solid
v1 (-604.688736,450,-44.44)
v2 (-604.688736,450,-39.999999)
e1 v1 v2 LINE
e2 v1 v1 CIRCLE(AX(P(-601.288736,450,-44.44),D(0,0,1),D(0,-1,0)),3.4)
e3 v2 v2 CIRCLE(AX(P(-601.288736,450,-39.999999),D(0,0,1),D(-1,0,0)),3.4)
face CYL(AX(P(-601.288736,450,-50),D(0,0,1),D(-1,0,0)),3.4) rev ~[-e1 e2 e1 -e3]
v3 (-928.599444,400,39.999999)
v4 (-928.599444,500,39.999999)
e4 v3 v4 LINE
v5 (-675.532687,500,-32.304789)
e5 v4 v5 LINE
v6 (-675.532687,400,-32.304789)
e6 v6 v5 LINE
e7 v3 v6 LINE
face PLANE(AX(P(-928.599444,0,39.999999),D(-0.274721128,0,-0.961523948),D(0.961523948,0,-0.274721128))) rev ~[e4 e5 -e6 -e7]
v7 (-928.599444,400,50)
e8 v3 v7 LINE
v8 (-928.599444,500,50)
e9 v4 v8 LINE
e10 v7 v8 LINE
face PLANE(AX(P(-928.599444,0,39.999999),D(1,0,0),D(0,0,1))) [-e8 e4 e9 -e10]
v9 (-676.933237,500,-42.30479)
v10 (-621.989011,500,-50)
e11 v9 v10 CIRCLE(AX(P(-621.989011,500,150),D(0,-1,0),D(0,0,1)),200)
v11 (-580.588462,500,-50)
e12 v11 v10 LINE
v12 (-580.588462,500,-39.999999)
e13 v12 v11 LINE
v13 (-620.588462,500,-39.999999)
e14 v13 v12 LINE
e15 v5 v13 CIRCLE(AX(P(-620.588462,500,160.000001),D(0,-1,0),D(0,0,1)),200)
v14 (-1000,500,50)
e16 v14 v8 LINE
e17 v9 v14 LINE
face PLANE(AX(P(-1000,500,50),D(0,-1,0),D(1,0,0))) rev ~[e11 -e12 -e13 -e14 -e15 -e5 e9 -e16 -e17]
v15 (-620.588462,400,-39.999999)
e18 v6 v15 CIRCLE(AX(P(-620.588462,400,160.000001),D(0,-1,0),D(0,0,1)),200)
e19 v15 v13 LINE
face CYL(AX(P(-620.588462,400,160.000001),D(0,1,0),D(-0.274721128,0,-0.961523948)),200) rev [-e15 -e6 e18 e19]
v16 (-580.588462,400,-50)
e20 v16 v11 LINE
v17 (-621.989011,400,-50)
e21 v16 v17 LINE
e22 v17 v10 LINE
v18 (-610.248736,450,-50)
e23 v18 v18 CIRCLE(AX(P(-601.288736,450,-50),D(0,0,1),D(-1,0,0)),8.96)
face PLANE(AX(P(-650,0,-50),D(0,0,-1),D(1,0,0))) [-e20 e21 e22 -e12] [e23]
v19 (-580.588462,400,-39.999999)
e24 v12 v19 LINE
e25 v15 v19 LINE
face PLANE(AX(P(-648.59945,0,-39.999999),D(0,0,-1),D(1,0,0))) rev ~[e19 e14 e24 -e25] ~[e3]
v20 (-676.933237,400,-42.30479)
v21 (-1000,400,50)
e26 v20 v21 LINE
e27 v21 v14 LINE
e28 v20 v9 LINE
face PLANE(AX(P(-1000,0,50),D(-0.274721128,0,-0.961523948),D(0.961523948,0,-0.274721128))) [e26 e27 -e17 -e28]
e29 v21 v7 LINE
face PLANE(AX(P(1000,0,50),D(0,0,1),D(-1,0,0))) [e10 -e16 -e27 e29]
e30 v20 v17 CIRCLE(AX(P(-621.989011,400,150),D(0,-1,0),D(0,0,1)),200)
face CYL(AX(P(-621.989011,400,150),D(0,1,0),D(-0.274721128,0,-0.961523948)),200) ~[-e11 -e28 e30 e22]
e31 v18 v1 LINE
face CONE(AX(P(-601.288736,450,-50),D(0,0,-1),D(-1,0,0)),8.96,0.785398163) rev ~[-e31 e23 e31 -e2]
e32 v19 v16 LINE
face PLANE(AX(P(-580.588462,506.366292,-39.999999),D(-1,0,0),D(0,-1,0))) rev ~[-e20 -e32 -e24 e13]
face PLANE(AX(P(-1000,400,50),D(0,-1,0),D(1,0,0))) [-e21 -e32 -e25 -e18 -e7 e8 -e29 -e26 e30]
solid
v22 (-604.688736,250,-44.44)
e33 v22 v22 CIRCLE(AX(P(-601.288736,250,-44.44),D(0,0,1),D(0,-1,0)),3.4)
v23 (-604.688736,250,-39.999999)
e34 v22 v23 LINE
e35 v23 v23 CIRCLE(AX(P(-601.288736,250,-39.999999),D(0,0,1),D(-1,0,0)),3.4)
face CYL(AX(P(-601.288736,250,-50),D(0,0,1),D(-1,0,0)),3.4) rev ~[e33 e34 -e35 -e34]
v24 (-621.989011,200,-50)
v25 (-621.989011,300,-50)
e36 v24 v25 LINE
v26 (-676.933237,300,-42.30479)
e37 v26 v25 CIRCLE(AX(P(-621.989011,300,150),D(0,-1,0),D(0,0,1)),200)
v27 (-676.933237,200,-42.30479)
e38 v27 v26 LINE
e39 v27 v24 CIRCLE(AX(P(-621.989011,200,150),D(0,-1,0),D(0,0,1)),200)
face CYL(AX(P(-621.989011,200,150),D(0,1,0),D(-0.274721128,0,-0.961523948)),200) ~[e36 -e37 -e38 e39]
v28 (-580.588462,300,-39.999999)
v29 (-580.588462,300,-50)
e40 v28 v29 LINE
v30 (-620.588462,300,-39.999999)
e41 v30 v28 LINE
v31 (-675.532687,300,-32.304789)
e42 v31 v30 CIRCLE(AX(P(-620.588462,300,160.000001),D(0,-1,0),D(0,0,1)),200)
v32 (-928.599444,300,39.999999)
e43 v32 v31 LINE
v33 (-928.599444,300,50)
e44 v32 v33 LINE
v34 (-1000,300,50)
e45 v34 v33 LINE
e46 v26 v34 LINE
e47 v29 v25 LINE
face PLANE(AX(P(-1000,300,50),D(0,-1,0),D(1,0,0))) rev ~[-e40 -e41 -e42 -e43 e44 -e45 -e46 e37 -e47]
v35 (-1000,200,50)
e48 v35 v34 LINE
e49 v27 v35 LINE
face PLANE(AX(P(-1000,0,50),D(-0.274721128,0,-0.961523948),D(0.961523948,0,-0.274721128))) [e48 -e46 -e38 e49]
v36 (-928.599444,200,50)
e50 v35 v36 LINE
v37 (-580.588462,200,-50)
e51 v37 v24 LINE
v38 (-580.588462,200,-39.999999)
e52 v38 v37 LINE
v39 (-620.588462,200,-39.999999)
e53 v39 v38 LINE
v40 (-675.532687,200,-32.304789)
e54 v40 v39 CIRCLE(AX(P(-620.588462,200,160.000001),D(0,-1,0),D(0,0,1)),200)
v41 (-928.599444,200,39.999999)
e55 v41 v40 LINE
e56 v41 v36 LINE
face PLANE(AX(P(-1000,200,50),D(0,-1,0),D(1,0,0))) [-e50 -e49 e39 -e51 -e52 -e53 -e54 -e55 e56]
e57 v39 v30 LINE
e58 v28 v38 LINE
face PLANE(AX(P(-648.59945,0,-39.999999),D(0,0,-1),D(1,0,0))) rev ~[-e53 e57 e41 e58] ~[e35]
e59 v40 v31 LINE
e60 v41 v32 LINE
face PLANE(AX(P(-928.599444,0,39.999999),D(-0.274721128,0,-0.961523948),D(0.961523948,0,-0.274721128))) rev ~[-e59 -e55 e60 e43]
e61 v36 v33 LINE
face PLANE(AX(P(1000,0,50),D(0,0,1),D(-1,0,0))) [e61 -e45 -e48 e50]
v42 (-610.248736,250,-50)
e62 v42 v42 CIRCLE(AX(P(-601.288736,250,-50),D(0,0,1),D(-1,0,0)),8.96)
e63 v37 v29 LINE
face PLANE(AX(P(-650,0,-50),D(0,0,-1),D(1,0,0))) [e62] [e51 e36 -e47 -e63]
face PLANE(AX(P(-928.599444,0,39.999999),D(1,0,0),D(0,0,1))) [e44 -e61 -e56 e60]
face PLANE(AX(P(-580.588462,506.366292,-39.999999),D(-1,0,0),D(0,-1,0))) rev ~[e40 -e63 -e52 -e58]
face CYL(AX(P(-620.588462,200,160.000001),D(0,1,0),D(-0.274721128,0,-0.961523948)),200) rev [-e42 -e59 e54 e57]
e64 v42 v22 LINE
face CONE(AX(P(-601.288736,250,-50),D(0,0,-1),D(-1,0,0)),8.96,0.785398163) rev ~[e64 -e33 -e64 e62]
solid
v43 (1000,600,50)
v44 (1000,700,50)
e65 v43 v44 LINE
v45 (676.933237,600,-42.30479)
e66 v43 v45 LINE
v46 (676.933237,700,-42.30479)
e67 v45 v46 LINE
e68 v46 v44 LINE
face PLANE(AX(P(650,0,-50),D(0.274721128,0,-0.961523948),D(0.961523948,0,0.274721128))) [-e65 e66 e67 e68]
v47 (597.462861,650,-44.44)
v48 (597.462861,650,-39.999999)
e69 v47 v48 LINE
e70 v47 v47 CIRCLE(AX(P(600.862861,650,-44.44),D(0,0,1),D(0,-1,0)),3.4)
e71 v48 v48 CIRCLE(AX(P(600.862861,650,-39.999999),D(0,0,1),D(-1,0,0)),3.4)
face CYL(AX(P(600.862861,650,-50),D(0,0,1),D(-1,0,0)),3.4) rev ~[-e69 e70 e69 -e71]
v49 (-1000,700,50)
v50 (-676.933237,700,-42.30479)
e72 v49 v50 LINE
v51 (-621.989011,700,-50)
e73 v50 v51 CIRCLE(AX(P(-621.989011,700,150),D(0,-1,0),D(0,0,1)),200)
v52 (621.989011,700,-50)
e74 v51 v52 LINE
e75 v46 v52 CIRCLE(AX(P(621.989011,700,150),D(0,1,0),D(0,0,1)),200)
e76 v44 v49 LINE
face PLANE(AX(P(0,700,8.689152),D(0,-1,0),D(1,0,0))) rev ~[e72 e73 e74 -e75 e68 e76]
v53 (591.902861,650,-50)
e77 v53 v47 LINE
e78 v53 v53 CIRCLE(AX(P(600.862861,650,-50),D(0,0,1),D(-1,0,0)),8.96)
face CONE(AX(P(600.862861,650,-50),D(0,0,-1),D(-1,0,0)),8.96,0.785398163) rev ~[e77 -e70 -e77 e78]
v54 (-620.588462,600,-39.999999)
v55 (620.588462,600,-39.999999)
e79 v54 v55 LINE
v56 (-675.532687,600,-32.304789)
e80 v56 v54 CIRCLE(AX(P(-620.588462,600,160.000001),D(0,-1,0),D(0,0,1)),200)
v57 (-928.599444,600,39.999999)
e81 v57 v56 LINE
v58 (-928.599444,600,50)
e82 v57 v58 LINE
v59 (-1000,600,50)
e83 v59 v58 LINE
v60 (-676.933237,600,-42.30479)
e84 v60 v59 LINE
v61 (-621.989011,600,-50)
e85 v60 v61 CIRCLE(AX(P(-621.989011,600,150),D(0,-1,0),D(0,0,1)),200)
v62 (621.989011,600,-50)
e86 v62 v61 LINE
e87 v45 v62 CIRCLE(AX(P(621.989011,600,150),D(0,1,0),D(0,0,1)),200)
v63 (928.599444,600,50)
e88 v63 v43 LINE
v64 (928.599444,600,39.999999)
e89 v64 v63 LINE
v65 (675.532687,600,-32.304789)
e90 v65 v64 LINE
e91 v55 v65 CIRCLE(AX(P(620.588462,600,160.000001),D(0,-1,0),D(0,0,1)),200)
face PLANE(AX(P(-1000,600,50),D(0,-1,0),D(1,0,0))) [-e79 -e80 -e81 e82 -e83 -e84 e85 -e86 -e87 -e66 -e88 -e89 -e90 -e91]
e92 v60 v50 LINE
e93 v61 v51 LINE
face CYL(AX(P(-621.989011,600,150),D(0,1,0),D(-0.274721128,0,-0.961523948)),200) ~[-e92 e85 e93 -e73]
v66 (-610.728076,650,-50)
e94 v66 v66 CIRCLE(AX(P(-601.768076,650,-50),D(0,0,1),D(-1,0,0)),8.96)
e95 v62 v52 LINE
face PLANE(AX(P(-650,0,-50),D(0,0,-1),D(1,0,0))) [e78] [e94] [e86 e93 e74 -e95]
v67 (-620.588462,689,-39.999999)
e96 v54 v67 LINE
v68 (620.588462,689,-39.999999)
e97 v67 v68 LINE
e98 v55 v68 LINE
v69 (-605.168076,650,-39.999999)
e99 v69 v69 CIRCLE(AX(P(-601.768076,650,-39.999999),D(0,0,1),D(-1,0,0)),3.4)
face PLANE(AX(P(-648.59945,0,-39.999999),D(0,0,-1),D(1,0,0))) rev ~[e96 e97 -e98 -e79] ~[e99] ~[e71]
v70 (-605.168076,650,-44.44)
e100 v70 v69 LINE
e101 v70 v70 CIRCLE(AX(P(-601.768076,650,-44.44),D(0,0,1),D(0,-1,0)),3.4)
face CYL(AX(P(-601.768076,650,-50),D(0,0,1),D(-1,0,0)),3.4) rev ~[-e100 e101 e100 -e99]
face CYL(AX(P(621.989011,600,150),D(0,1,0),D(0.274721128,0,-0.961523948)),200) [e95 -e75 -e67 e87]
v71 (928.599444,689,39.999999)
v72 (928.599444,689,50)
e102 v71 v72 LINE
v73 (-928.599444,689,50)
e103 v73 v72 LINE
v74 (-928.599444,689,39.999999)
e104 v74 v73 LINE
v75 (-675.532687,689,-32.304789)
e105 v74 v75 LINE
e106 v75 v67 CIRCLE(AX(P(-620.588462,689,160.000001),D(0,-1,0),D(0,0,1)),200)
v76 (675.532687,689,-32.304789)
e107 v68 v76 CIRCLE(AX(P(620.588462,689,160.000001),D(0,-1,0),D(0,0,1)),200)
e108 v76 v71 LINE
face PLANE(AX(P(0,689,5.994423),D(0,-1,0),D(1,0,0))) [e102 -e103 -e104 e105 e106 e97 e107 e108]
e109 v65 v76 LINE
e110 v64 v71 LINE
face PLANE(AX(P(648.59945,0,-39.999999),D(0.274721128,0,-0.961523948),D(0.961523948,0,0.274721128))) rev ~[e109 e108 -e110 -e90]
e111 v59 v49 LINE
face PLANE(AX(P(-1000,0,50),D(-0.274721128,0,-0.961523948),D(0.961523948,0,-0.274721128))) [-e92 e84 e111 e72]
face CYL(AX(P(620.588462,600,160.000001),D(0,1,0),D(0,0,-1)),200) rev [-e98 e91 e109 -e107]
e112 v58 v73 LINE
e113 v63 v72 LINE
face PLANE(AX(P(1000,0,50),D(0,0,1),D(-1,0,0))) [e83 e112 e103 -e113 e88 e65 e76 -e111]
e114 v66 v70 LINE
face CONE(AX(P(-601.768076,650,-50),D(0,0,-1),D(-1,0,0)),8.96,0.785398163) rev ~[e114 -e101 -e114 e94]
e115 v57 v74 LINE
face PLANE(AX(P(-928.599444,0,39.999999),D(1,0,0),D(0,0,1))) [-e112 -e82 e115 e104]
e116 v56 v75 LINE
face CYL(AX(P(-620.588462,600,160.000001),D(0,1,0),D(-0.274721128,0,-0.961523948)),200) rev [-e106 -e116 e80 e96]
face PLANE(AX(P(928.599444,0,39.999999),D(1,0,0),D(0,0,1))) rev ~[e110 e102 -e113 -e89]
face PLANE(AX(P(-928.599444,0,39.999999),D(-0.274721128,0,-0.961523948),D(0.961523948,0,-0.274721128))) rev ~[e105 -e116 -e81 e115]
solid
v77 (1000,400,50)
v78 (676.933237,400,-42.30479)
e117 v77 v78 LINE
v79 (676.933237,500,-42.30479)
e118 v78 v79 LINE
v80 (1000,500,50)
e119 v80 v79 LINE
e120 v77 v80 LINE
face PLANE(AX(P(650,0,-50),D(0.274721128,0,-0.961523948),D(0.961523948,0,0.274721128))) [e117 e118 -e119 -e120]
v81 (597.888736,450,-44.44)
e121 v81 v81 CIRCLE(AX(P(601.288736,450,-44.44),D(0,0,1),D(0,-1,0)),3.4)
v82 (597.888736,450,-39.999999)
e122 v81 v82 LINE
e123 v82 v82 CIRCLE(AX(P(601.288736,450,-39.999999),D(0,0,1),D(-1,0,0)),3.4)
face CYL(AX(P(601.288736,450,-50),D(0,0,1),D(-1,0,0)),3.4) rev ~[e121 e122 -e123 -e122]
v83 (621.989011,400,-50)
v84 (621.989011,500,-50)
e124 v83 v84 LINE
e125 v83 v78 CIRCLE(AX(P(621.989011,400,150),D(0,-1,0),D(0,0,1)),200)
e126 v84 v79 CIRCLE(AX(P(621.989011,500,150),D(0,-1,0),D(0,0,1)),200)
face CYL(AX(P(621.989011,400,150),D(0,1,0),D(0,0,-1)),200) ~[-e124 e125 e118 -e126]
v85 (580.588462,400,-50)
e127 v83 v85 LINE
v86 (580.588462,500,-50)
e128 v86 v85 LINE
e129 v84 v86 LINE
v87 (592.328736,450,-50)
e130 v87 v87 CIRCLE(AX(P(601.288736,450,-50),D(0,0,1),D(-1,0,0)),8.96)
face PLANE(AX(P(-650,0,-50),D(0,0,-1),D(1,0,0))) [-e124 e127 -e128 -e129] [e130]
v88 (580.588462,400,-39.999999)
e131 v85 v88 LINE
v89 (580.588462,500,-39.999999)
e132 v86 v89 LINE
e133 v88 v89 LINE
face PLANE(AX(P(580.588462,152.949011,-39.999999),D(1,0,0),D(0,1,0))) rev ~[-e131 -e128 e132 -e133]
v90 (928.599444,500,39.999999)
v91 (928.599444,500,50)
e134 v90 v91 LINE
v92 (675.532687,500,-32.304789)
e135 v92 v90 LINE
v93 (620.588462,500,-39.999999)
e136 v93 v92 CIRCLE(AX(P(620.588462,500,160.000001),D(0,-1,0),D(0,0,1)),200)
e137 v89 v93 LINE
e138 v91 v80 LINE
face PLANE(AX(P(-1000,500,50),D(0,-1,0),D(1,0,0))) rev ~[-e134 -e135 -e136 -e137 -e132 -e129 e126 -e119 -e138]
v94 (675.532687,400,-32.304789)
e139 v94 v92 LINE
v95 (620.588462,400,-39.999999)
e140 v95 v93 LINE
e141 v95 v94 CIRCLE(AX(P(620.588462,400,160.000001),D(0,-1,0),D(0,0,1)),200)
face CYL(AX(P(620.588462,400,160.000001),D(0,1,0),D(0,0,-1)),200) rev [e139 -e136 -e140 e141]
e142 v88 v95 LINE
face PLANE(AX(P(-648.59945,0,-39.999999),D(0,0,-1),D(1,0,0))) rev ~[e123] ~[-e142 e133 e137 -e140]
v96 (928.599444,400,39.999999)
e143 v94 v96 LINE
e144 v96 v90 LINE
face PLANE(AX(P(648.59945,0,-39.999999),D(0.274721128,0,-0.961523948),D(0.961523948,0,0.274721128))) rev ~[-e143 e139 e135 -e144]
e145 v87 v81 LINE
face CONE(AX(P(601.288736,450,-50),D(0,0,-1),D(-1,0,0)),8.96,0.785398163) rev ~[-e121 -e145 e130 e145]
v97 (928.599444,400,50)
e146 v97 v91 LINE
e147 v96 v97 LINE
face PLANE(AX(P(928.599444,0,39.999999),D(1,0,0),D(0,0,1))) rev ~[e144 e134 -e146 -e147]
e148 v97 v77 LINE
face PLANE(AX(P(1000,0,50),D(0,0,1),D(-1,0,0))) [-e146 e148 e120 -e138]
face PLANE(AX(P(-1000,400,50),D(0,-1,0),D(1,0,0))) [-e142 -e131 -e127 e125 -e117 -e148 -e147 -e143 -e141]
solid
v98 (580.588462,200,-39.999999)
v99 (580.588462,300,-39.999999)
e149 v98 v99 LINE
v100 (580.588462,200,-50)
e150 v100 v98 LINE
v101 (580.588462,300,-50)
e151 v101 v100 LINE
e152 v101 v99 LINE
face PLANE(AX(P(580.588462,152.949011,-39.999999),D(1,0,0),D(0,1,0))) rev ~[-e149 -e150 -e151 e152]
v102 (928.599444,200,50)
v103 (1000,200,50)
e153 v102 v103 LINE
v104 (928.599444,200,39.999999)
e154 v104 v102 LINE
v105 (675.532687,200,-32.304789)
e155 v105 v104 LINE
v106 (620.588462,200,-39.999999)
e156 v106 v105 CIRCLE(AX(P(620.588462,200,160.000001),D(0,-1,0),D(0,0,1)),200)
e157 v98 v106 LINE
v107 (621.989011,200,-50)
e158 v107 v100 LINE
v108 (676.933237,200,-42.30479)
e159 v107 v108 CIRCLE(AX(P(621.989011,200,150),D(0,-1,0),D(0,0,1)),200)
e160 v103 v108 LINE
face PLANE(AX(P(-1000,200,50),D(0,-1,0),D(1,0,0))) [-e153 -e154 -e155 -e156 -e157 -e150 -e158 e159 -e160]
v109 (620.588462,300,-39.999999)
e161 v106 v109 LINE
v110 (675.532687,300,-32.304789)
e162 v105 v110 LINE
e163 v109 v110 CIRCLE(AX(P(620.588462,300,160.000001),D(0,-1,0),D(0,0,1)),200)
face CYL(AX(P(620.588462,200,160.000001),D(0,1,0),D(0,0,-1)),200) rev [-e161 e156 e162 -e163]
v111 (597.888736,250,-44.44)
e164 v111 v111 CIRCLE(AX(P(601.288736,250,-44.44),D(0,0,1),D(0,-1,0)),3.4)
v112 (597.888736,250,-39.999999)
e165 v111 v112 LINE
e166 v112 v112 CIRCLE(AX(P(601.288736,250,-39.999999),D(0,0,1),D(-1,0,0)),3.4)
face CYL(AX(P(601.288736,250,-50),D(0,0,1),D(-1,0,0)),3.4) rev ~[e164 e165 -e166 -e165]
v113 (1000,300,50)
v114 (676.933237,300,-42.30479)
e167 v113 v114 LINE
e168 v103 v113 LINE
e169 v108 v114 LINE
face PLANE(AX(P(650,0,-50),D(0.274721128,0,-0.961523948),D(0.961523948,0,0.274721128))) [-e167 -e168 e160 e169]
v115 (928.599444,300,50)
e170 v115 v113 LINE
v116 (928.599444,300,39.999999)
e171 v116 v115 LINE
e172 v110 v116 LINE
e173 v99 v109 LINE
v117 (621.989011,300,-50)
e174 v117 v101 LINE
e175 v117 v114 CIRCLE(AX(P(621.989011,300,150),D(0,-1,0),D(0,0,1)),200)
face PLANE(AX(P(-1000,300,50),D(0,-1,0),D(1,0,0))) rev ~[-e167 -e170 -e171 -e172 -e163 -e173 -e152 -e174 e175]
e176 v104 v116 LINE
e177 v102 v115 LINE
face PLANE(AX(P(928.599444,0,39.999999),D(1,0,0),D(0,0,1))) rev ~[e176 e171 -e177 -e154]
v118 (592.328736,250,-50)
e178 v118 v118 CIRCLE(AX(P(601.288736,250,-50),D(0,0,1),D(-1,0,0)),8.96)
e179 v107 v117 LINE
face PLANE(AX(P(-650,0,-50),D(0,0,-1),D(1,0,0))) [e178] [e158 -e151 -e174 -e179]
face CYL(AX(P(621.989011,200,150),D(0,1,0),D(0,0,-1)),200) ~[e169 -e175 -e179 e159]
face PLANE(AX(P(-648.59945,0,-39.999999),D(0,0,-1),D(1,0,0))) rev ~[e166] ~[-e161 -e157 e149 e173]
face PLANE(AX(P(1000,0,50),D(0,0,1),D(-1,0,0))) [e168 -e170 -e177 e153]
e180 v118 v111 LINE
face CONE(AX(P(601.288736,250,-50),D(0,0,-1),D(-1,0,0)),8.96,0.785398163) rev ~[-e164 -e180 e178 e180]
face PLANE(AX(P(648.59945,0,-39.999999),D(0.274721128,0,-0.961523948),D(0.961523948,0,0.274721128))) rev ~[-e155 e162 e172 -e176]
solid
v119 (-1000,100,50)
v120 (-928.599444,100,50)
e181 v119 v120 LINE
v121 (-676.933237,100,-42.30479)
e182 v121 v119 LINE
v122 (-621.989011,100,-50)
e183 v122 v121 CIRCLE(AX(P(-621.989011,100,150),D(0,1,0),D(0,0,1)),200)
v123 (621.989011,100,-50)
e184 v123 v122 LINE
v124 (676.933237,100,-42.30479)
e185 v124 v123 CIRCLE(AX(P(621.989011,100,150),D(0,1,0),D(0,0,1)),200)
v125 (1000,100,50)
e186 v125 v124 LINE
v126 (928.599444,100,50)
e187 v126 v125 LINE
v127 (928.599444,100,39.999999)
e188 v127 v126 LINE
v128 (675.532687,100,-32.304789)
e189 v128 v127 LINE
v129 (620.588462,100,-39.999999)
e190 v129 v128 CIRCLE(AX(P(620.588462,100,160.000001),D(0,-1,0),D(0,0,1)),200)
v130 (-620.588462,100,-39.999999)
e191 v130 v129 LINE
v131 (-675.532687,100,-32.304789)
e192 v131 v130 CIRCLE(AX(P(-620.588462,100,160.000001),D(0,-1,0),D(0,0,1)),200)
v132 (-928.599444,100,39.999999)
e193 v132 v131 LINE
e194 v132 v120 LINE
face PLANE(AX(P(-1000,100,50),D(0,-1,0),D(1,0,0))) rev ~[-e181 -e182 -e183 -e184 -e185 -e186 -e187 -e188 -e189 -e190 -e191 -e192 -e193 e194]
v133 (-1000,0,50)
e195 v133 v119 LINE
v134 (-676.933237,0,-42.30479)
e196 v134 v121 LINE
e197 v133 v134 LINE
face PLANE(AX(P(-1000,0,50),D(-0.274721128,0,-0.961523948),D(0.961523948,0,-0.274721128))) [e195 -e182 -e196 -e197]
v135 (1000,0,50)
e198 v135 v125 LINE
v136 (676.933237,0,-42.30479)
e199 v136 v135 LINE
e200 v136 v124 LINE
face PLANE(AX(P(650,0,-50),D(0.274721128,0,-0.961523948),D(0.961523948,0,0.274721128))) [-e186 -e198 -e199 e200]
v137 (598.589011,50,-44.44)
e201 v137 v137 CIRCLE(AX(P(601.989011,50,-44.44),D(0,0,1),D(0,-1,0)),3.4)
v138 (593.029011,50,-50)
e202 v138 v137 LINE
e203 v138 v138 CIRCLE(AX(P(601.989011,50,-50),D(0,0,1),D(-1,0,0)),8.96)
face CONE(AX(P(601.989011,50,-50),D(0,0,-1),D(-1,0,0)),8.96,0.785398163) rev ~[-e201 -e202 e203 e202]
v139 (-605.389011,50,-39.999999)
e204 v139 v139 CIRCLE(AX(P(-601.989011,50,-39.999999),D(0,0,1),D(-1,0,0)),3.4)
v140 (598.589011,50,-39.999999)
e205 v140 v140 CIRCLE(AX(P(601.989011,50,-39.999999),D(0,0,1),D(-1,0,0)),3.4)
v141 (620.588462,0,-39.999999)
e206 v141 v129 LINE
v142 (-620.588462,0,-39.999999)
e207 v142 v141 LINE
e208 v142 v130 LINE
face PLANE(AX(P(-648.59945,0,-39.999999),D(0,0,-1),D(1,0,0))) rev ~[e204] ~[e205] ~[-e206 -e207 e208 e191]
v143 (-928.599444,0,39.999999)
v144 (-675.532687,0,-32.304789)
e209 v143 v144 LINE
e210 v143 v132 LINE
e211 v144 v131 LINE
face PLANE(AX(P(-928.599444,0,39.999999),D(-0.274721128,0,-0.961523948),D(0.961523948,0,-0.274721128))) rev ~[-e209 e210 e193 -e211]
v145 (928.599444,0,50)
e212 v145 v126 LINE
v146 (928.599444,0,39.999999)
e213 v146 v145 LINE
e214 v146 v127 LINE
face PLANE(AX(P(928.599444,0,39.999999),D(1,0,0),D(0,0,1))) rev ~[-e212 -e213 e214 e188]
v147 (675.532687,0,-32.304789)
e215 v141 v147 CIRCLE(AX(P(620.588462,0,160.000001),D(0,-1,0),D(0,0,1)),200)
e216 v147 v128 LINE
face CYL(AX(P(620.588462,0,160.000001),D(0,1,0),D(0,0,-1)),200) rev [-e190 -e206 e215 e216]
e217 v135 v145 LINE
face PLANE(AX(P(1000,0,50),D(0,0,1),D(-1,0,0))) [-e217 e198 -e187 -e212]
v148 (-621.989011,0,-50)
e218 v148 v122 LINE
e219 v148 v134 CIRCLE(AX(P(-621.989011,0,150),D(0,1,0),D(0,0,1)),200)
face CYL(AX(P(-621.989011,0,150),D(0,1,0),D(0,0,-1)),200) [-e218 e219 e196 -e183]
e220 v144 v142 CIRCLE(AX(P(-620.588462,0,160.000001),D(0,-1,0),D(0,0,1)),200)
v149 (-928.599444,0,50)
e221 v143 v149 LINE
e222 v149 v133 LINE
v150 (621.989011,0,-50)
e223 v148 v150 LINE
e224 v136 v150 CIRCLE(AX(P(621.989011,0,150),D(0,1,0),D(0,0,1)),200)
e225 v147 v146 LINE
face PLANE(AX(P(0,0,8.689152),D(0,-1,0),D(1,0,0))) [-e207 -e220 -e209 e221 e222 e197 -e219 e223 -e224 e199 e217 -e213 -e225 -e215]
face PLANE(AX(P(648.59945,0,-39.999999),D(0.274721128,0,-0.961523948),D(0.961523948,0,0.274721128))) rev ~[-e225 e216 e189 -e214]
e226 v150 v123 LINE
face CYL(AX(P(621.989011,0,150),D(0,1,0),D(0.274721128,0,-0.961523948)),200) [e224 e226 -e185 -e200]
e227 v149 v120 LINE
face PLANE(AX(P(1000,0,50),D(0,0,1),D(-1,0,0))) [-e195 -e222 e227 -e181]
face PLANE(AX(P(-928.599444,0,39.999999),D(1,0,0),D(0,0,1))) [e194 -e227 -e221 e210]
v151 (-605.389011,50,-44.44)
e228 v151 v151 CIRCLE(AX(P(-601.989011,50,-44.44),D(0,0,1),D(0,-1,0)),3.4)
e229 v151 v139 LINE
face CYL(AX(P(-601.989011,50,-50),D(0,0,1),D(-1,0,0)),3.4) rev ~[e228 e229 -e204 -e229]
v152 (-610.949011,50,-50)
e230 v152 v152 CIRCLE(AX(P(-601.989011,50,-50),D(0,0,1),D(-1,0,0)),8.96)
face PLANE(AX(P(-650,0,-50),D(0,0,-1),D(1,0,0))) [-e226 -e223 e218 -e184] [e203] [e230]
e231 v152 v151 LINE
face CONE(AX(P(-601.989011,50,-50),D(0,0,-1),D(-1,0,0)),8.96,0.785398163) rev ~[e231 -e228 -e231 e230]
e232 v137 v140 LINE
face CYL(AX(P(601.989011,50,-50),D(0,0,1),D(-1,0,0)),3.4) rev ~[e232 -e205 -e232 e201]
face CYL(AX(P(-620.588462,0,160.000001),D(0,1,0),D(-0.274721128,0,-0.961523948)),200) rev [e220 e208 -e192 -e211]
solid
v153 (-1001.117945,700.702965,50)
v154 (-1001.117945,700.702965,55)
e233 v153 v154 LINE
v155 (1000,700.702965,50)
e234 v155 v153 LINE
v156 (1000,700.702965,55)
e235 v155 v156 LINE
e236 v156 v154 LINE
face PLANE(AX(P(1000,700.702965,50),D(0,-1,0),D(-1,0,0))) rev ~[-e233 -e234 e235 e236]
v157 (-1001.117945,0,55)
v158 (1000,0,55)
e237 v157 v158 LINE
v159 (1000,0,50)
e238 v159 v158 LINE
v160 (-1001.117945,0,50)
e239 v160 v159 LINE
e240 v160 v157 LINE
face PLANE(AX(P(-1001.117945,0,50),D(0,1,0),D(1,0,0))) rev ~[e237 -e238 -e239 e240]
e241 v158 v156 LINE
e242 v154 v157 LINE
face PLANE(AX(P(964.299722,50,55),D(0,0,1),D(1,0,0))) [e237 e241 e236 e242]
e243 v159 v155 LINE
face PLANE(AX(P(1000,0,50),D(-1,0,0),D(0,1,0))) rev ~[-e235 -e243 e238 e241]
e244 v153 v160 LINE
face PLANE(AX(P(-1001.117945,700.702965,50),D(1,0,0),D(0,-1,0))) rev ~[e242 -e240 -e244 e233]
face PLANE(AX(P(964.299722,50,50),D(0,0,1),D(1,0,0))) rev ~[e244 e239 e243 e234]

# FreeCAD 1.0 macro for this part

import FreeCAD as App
import Part
import Sketcher


def edges_at(feature, points):
    """Names of the edges that pass closest to the given points."""
    edges = feature.Shape.Edges
    near = lambda p: min(range(len(edges)), key=lambda i: edges[i].distToShape(Part.Vertex(*p))[0])
    return sorted({f"Edge{near(p) + 1}" for p in points})

doc = App.newDocument("Part")
params = doc.addObject("Spreadsheet::Sheet", "Params")
for row, (alias, value) in enumerate([
    ("sketch1_width", "2000 mm"),
    ("sketch1_width2", "1300 mm"),
    ("pad1_length", "700 mm"),
    ("sketch2_width", "2000 mm"),
    ("sketch2_height", "100 mm"),
    ("pocket1_length", "680 mm"),
    ("sketch3_height", "10.000001 mm"),
    ("pocket2_length", "689 mm"),
    ("fillet_radius", "200 mm"),
    ("fillet2_radius", "200 mm"),
    ("pocket3_length", "175 mm"),
    ("sketch5_diameter", "6.8 mm"),
    ("hole_diameter", "6.8 mm"),
    ("hole_depth", "15.75 mm"),
    ("hole_csink_diameter", "17.92 mm"),
    ("sketch6_diameter", "6.8 mm"),
    ("hole2_diameter", "6.8 mm"),
    ("hole2_depth", "15.75 mm"),
    ("hole2_csink_diameter", "17.92 mm"),
    ("sketch7_diameter", "6.8 mm"),
    ("hole3_diameter", "6.8 mm"),
    ("hole3_depth", "15.75 mm"),
    ("hole3_csink_diameter", "17.92 mm"),
    ("sketch8_diameter", "6.8 mm"),
    ("hole4_diameter", "6.8 mm"),
    ("hole4_depth", "15.75 mm"),
    ("hole4_csink_diameter", "17.92 mm"),
    ("sketch9_diameter", "6.8 mm"),
    ("hole5_diameter", "6.8 mm"),
    ("hole5_depth", "15.75 mm"),
    ("hole5_csink_diameter", "17.92 mm"),
    ("sketch10_diameter", "6.8 mm"),
    ("hole6_diameter", "6.8 mm"),
    ("hole6_depth", "15.75 mm"),
    ("hole6_csink_diameter", "17.92 mm"),
    ("sketch11_height", "700 mm"),
    ("sketch11_height2", "9 mm"),
    ("sketch11_height3", "660 mm"),
    ("pad2_length", "10 mm"),
    ("pad3_length", "5 mm"),
], start=1):
    params.set(f"A{row}", alias)
    params.set(f"B{row}", "=" + value)
    params.setAlias(f"B{row}", alias)

body = doc.addObject("PartDesign::Body", "Body")
body.AllowCompound = True

# Sketch on XZ plane
sketch1 = body.newObject("Sketcher::SketchObject", "Sketch")
sketch1.AttachmentSupport = (doc.getObject("XZ_Plane"), [""])
sketch1.MapMode = "FlatFace"
sketch1.addGeometry([
    Part.LineSegment(App.Vector(1000, 50, 0), App.Vector(-1000, 50, 0)),
    Part.LineSegment(App.Vector(-1000, 50, 0), App.Vector(-650, -50, 0)),
    Part.LineSegment(App.Vector(-650, -50, 0), App.Vector(650, -50, 0)),
    Part.LineSegment(App.Vector(650, -50, 0), App.Vector(1000, 50, 0)),
], False)
sketch1.addConstraint([
    Sketcher.Constraint("Coincident", 0, 2, 1, 1),
    Sketcher.Constraint("Coincident", 1, 2, 2, 1),
    Sketcher.Constraint("Coincident", 2, 2, 3, 1),
    Sketcher.Constraint("Coincident", 3, 2, 0, 1),
    Sketcher.Constraint("Horizontal", 0),
    Sketcher.Constraint("Horizontal", 2),
    Sketcher.Constraint("Equal", 1, 3),
    Sketcher.Constraint("DistanceX", 0, 2, 0, 1, 2000.0),
    Sketcher.Constraint("DistanceX", 2, 1, 2, 2, 1300.0),
    Sketcher.Constraint("DistanceX", 0, 2, -1, 1, 1000.0),
    Sketcher.Constraint("DistanceY", -1, 1, 0, 2, 50.0),
    Sketcher.Constraint("DistanceY", 1, 2, -1, 1, 50.0),
])
sketch1.setExpression("Constraints[7]", "Params.sketch1_width")
sketch1.setExpression("Constraints[8]", "Params.sketch1_width2")
pad1 = body.newObject("PartDesign::Pad", "Pad")
pad1.Profile = sketch1
pad1.setExpression("Length", "Params.pad1_length")
pad1.Reversed = True

# Sketch on XY plane
sketch2 = body.newObject("Sketcher::SketchObject", "Sketch001")
sketch2.AttachmentSupport = (doc.getObject("XY_Plane"), [""])
sketch2.MapMode = "FlatFace"
sketch2.AttachmentOffset = App.Placement(App.Vector(0, 0, 50), App.Rotation())
sketch2.addGeometry([
    Part.LineSegment(App.Vector(-1000, 600, 0), App.Vector(-1000, 500, 0)),  # 0
    Part.LineSegment(App.Vector(-1000, 500, 0), App.Vector(1000, 500, 0)),  # 1
    Part.LineSegment(App.Vector(1000, 500, 0), App.Vector(1000, 600, 0)),  # 2
    Part.LineSegment(App.Vector(1000, 600, 0), App.Vector(-1000, 600, 0)),  # 3
    Part.LineSegment(App.Vector(-1000, 400, 0), App.Vector(-1000, 300, 0)),  # 4
    Part.LineSegment(App.Vector(-1000, 300, 0), App.Vector(1000, 300, 0)),  # 5
    Part.LineSegment(App.Vector(1000, 300, 0), App.Vector(1000, 400, 0)),  # 6
    Part.LineSegment(App.Vector(1000, 400, 0), App.Vector(-1000, 400, 0)),  # 7
    Part.LineSegment(App.Vector(-1000, 200, 0), App.Vector(-1000, 100, 0)),  # 8
    Part.LineSegment(App.Vector(-1000, 100, 0), App.Vector(1000, 100, 0)),  # 9
    Part.LineSegment(App.Vector(1000, 100, 0), App.Vector(1000, 200, 0)),  # 10
    Part.LineSegment(App.Vector(1000, 200, 0), App.Vector(-1000, 200, 0)),  # 11
], False)
sketch2.addConstraint([
    Sketcher.Constraint("Coincident", 0, 2, 1, 1),
    Sketcher.Constraint("Coincident", 1, 2, 2, 1),
    Sketcher.Constraint("Coincident", 2, 2, 3, 1),
    Sketcher.Constraint("Coincident", 3, 2, 0, 1),
    Sketcher.Constraint("Coincident", 4, 2, 5, 1),
    Sketcher.Constraint("Coincident", 5, 2, 6, 1),
    Sketcher.Constraint("Coincident", 6, 2, 7, 1),
    Sketcher.Constraint("Coincident", 7, 2, 4, 1),
    Sketcher.Constraint("Coincident", 8, 2, 9, 1),
    Sketcher.Constraint("Coincident", 9, 2, 10, 1),
    Sketcher.Constraint("Coincident", 10, 2, 11, 1),
    Sketcher.Constraint("Coincident", 11, 2, 8, 1),
    Sketcher.Constraint("Vertical", 0),
    Sketcher.Constraint("Horizontal", 1),
    Sketcher.Constraint("Vertical", 2),
    Sketcher.Constraint("Horizontal", 3),
    Sketcher.Constraint("Vertical", 4),
    Sketcher.Constraint("Horizontal", 5),
    Sketcher.Constraint("Vertical", 6),
    Sketcher.Constraint("Horizontal", 7),
    Sketcher.Constraint("Vertical", 8),
    Sketcher.Constraint("Horizontal", 9),
    Sketcher.Constraint("Vertical", 10),
    Sketcher.Constraint("Horizontal", 11),
    Sketcher.Constraint("Vertical", 3, 2, 4, 2),
    Sketcher.Constraint("Vertical", 2, 2, 5, 2),
    Sketcher.Constraint("Vertical", 7, 2, 8, 2),
    Sketcher.Constraint("Vertical", 6, 2, 9, 2),
    Sketcher.Constraint("Equal", 2, 4),
    Sketcher.Constraint("Equal", 6, 8),
    Sketcher.Constraint("DistanceX", 1, 1, 1, 2, 2000.0),
    Sketcher.Constraint("DistanceY", 0, 2, 0, 1, 100.0),
    Sketcher.Constraint("DistanceX", 0, 2, -1, 1, 1000.0),
    Sketcher.Constraint("DistanceY", -1, 1, 0, 2, 500.0),
    Sketcher.Constraint("DistanceY", -1, 1, 4, 2, 300.0),
    Sketcher.Constraint("DistanceY", -1, 1, 8, 2, 100.0),
])
sketch2.setExpression("Constraints[30]", "Params.sketch2_width")
sketch2.setExpression("Constraints[31]", "Params.sketch2_height")
pocket1 = body.newObject("PartDesign::Pocket", "Pocket")
pocket1.Profile = sketch2
pocket1.setExpression("Length", "Params.pocket1_length")

# Sketch on XZ plane
sketch3 = body.newObject("Sketcher::SketchObject", "Sketch002")
sketch3.AttachmentSupport = (doc.getObject("XZ_Plane"), [""])
sketch3.MapMode = "FlatFace"
sketch3.addGeometry([
    Part.LineSegment(App.Vector(-929, 40, 0), App.Vector(-649, -40, 0)),  # 0
    Part.LineSegment(App.Vector(-649, -40, 0), App.Vector(649, -40, 0)),  # 1
    Part.LineSegment(App.Vector(649, -40, 0), App.Vector(929, 40, 0)),  # 2
    Part.LineSegment(App.Vector(929, 40, 0), App.Vector(929, 50, 0)),  # 3
    Part.LineSegment(App.Vector(929, 50, 0), App.Vector(-929, 50, 0)),  # 4
    Part.LineSegment(App.Vector(-929, 50, 0), App.Vector(-929, 40, 0)),  # 5
], False)
sketch3.addConstraint([
    Sketcher.Constraint("Coincident", 0, 2, 1, 1),
    Sketcher.Constraint("Coincident", 1, 2, 2, 1),
    Sketcher.Constraint("Coincident", 2, 2, 3, 1),
    Sketcher.Constraint("Coincident", 3, 2, 4, 1),
    Sketcher.Constraint("Coincident", 4, 2, 5, 1),
    Sketcher.Constraint("Coincident", 5, 2, 0, 1),
    Sketcher.Constraint("Horizontal", 1),
    Sketcher.Constraint("Vertical", 3),
    Sketcher.Constraint("Horizontal", 4),
    Sketcher.Constraint("Vertical", 5),
    Sketcher.Constraint("Symmetric", 2, 2, 5, 2, -2),
    Sketcher.Constraint("Equal", 0, 2),
    Sketcher.Constraint("DistanceY", 3, 1, 3, 2, 10.000001),
    Sketcher.Constraint("DistanceY", 0, 2, -1, 1, 39.999999),
    Sketcher.Constraint("DistanceY", -1, 1, 2, 2, 39.999999),
    Sketcher.Constraint("DistanceX", 1, 1, 1, 2, 1297.198901),
    Sketcher.Constraint("DistanceX", 4, 2, 4, 1, 1857.198888),
])
sketch3.setExpression("Constraints[12]", "Params.sketch3_height")
pocket2 = body.newObject("PartDesign::Pocket", "Pocket001")
pocket2.Profile = sketch3
pocket2.setExpression("Length", "Params.pocket2_length")
doc.recompute()

fillet = body.newObject("PartDesign::Fillet", "Fillet")
fillet.Base = (pocket2, edges_at(pocket2, [
    (-650, 250, -50),
    (-650, 50, -50),
    (-650, 450, -50),
    (-650, 650, -50),
    (650, 650, -50),
    (650, 450, -50),
    (650, 250, -50),
    (650, 50, -50),
    (-648.599, 250, -40),
    (-648.599, 50, -40),
    (-648.599, 450, -40),
    (-648.599, 644.5, -40),
    (648.599, 250, -40),
    (648.599, 50, -40),
    (648.599, 644.5, -40),
]))
fillet.setExpression("Radius", "Params.fillet_radius")
doc.recompute()

fillet2 = body.newObject("PartDesign::Fillet", "Fillet001")
fillet2.Base = (fillet, edges_at(fillet, [(648.599, 450, -40)]))
fillet2.setExpression("Radius", "Params.fillet2_radius")

# Sketch on XY plane
sketch4 = body.newObject("Sketcher::SketchObject", "Sketch003")
sketch4.AttachmentSupport = (doc.getObject("XY_Plane"), [""])
sketch4.MapMode = "FlatFace"
sketch4.AttachmentOffset = App.Placement(App.Vector(0, 0, -39.999999), App.Rotation())
sketch4.addGeometry([
    Part.LineSegment(App.Vector(-581, 506, 0), App.Vector(-581, 153, 0)),
    Part.LineSegment(App.Vector(-581, 153, 0), App.Vector(581, 153, 0)),
    Part.LineSegment(App.Vector(581, 153, 0), App.Vector(581, 506, 0)),
    Part.LineSegment(App.Vector(581, 506, 0), App.Vector(-581, 506, 0)),
], False)
sketch4.addConstraint([
    Sketcher.Constraint("Coincident", 0, 2, 1, 1),
    Sketcher.Constraint("Coincident", 1, 2, 2, 1),
    Sketcher.Constraint("Coincident", 2, 2, 3, 1),
    Sketcher.Constraint("Coincident", 3, 2, 0, 1),
    Sketcher.Constraint("Vertical", 0),
    Sketcher.Constraint("Horizontal", 1),
    Sketcher.Constraint("Vertical", 2),
    Sketcher.Constraint("Horizontal", 3),
    Sketcher.Constraint("DistanceY", 0, 2, 0, 1, 353.41728),
    Sketcher.Constraint("DistanceX", 1, 1, 1, 2, 1161.176923),
    Sketcher.Constraint("DistanceX", 0, 2, -1, 1, 580.588461),
    Sketcher.Constraint("DistanceY", -1, 1, 0, 2, 152.949011),
])
pocket3 = body.newObject("PartDesign::Pocket", "Pocket002")
pocket3.Profile = sketch4
pocket3.setExpression("Length", "Params.pocket3_length")

# Sketch on XY plane
sketch5 = body.newObject("Sketcher::SketchObject", "Sketch004")
sketch5.AttachmentSupport = (doc.getObject("XY_Plane"), [""])
sketch5.MapMode = "FlatFace"
sketch5.AttachmentOffset = App.Placement(App.Vector(0, 0, -50), App.Rotation())
sketch5.addGeometry(Part.Circle(App.Vector(-601.3, 250, 0), App.Vector(0, 0, 1), 3.4), False)
sketch5.addConstraint([
    Sketcher.Constraint("Diameter", 0, 6.8),
    Sketcher.Constraint("DistanceY", -1, 1, 0, 3, 250.0),
    Sketcher.Constraint("DistanceX", 0, 3, -1, 1, 601.288736),
])
sketch5.setExpression("Constraints[0]", "Params.sketch5_diameter")
doc.recompute()
hole = body.newObject("PartDesign::Hole", "Hole")
hole.Profile = sketch5
hole.ThreadType = "None"
hole.setExpression("Diameter", "Params.hole_diameter")
hole.DepthType = "Dimension"
hole.setExpression("Depth", "Params.hole_depth")
hole.DrillPoint = "Angled"
hole.DrillPointAngle = 118
hole.HoleCutType = "Countersink"
hole.setExpression("HoleCutDiameter", "Params.hole_csink_diameter")
hole.HoleCutCountersinkAngle = 90
hole.Reversed = True

# Sketch on XY plane
sketch6 = body.newObject("Sketcher::SketchObject", "Sketch005")
sketch6.AttachmentSupport = (doc.getObject("XY_Plane"), [""])
sketch6.MapMode = "FlatFace"
sketch6.AttachmentOffset = App.Placement(App.Vector(0, 0, -50), App.Rotation())
sketch6.addGeometry(Part.Circle(App.Vector(-601.3, 450, 0), App.Vector(0, 0, 1), 3.4), False)
sketch6.addConstraint([
    Sketcher.Constraint("Diameter", 0, 6.8),
    Sketcher.Constraint("DistanceY", -1, 1, 0, 3, 450.0),
    Sketcher.Constraint("DistanceX", 0, 3, -1, 1, 601.288736),
])
sketch6.setExpression("Constraints[0]", "Params.sketch6_diameter")
doc.recompute()
hole2 = body.newObject("PartDesign::Hole", "Hole001")
hole2.Profile = sketch6
hole2.ThreadType = "None"
hole2.setExpression("Diameter", "Params.hole2_diameter")
hole2.DepthType = "Dimension"
hole2.setExpression("Depth", "Params.hole2_depth")
hole2.DrillPoint = "Angled"
hole2.DrillPointAngle = 118
hole2.HoleCutType = "Countersink"
hole2.setExpression("HoleCutDiameter", "Params.hole2_csink_diameter")
hole2.HoleCutCountersinkAngle = 90
hole2.Reversed = True

# Sketch on XY plane
sketch7 = body.newObject("Sketcher::SketchObject", "Sketch006")
sketch7.AttachmentSupport = (doc.getObject("XY_Plane"), [""])
sketch7.MapMode = "FlatFace"
sketch7.AttachmentOffset = App.Placement(App.Vector(0, 0, -50), App.Rotation())
sketch7.addGeometry([
    Part.Circle(App.Vector(-601.8, 650, 0), App.Vector(0, 0, 1), 3.4),
    Part.Circle(App.Vector(600.9, 650, 0), App.Vector(0, 0, 1), 3.4),
], False)
sketch7.addConstraint([
    Sketcher.Constraint("Equal", 0, 1),
    Sketcher.Constraint("Horizontal", 0, 3, 1, 3),
    Sketcher.Constraint("Diameter", 0, 6.8),
    Sketcher.Constraint("DistanceY", -1, 1, 0, 3, 650.0),
    Sketcher.Constraint("DistanceX", -1, 1, 1, 3, 600.862861),
    Sketcher.Constraint("DistanceX", 0, 3, -1, 1, 601.768076),
])
sketch7.setExpression("Constraints[2]", "Params.sketch7_diameter")
doc.recompute()
hole3 = body.newObject("PartDesign::Hole", "Hole002")
hole3.Profile = sketch7
hole3.ThreadType = "None"
hole3.setExpression("Diameter", "Params.hole3_diameter")
hole3.DepthType = "Dimension"
hole3.setExpression("Depth", "Params.hole3_depth")
hole3.DrillPoint = "Angled"
hole3.DrillPointAngle = 118
hole3.HoleCutType = "Countersink"
hole3.setExpression("HoleCutDiameter", "Params.hole3_csink_diameter")
hole3.HoleCutCountersinkAngle = 90
hole3.Reversed = True

# Sketch on XY plane
sketch8 = body.newObject("Sketcher::SketchObject", "Sketch007")
sketch8.AttachmentSupport = (doc.getObject("XY_Plane"), [""])
sketch8.MapMode = "FlatFace"
sketch8.AttachmentOffset = App.Placement(App.Vector(0, 0, -50), App.Rotation())
sketch8.addGeometry(Part.Circle(App.Vector(601.3, 450, 0), App.Vector(0, 0, 1), 3.4), False)
sketch8.addConstraint([
    Sketcher.Constraint("Diameter", 0, 6.8),
    Sketcher.Constraint("DistanceY", -1, 1, 0, 3, 450.0),
    Sketcher.Constraint("DistanceX", -1, 1, 0, 3, 601.288736),
])
sketch8.setExpression("Constraints[0]", "Params.sketch8_diameter")
doc.recompute()
hole4 = body.newObject("PartDesign::Hole", "Hole003")
hole4.Profile = sketch8
hole4.ThreadType = "None"
hole4.setExpression("Diameter", "Params.hole4_diameter")
hole4.DepthType = "Dimension"
hole4.setExpression("Depth", "Params.hole4_depth")
hole4.DrillPoint = "Angled"
hole4.DrillPointAngle = 118
hole4.HoleCutType = "Countersink"
hole4.setExpression("HoleCutDiameter", "Params.hole4_csink_diameter")
hole4.HoleCutCountersinkAngle = 90
hole4.Reversed = True

# Sketch on XY plane
sketch9 = body.newObject("Sketcher::SketchObject", "Sketch008")
sketch9.AttachmentSupport = (doc.getObject("XY_Plane"), [""])
sketch9.MapMode = "FlatFace"
sketch9.AttachmentOffset = App.Placement(App.Vector(0, 0, -50), App.Rotation())
sketch9.addGeometry(Part.Circle(App.Vector(601.3, 250, 0), App.Vector(0, 0, 1), 3.4), False)
sketch9.addConstraint([
    Sketcher.Constraint("Diameter", 0, 6.8),
    Sketcher.Constraint("DistanceY", -1, 1, 0, 3, 250.0),
    Sketcher.Constraint("DistanceX", -1, 1, 0, 3, 601.288736),
])
sketch9.setExpression("Constraints[0]", "Params.sketch9_diameter")
doc.recompute()
hole5 = body.newObject("PartDesign::Hole", "Hole004")
hole5.Profile = sketch9
hole5.ThreadType = "None"
hole5.setExpression("Diameter", "Params.hole5_diameter")
hole5.DepthType = "Dimension"
hole5.setExpression("Depth", "Params.hole5_depth")
hole5.DrillPoint = "Angled"
hole5.DrillPointAngle = 118
hole5.HoleCutType = "Countersink"
hole5.setExpression("HoleCutDiameter", "Params.hole5_csink_diameter")
hole5.HoleCutCountersinkAngle = 90
hole5.Reversed = True

# Sketch on XY plane
sketch10 = body.newObject("Sketcher::SketchObject", "Sketch009")
sketch10.AttachmentSupport = (doc.getObject("XY_Plane"), [""])
sketch10.MapMode = "FlatFace"
sketch10.AttachmentOffset = App.Placement(App.Vector(0, 0, -50), App.Rotation())
sketch10.addGeometry([
    Part.Circle(App.Vector(602, 50, 0), App.Vector(0, 0, 1), 3.4),
    Part.Circle(App.Vector(-602, 50, 0), App.Vector(0, 0, 1), 3.4),
], False)
sketch10.addConstraint([
    Sketcher.Constraint("Equal", 0, 1),
    Sketcher.Constraint("Symmetric", 0, 3, 1, 3, -2),
    Sketcher.Constraint("Diameter", 0, 6.8),
    Sketcher.Constraint("DistanceY", -1, 1, 0, 3, 50.0),
    Sketcher.Constraint("DistanceX", -1, 1, 0, 3, 601.989011),
])
sketch10.setExpression("Constraints[2]", "Params.sketch10_diameter")
doc.recompute()
hole6 = body.newObject("PartDesign::Hole", "Hole005")
hole6.Profile = sketch10
hole6.ThreadType = "None"
hole6.setExpression("Diameter", "Params.hole6_diameter")
hole6.DepthType = "Dimension"
hole6.setExpression("Depth", "Params.hole6_depth")
hole6.DrillPoint = "Angled"
hole6.DrillPointAngle = 118
hole6.HoleCutType = "Countersink"
hole6.setExpression("HoleCutDiameter", "Params.hole6_csink_diameter")
hole6.HoleCutCountersinkAngle = 90
hole6.Reversed = True
body2 = doc.addObject("PartDesign::Body", "Body001")

# Sketch on XY plane
sketch11 = body2.newObject("Sketcher::SketchObject", "Sketch010")
sketch11.AttachmentSupport = (doc.getObject("XY_Plane001"), [""])
sketch11.MapMode = "FlatFace"
sketch11.AttachmentOffset = App.Placement(App.Vector(0, 0, 50), App.Rotation())
sketch11.addGeometry([
    Part.LineSegment(App.Vector(-1000, 700, 0), App.Vector(-1000, 0, 0)),  # 0
    Part.LineSegment(App.Vector(-1000, 0, 0), App.Vector(1000.4, 0, 0)),  # 1
    Part.LineSegment(App.Vector(1000.4, 0, 0), App.Vector(1000.4, 700, 0)),  # 2
    Part.LineSegment(App.Vector(1000.4, 700, 0), App.Vector(-1000, 700, 0)),  # 3
    Part.LineSegment(App.Vector(-930, 680, 0), App.Vector(-928.6, 680, 0)),  # 4
    Part.LineSegment(App.Vector(-928.6, 680, 0), App.Vector(-928.6, 689, 0)),  # 5
    Part.LineSegment(App.Vector(-928.6, 689, 0), App.Vector(928.6, 689, 0)),  # 6
    Part.LineSegment(App.Vector(928.6, 689, 0), App.Vector(928.6, 680, 0)),  # 7
    Part.LineSegment(App.Vector(928.6, 680, 0), App.Vector(930.4, 680, 0)),  # 8
    Part.LineSegment(App.Vector(930.4, 680, 0), App.Vector(930.4, 20, 0)),  # 9
    Part.LineSegment(App.Vector(930.4, 20, 0), App.Vector(-930, 20, 0)),  # 10
    Part.LineSegment(App.Vector(-930, 20, 0), App.Vector(-930, 680, 0)),  # 11
], False)
sketch11.addConstraint([
    Sketcher.Constraint("Coincident", 0, 2, 1, 1),
    Sketcher.Constraint("Coincident", 1, 2, 2, 1),
    Sketcher.Constraint("Coincident", 2, 2, 3, 1),
    Sketcher.Constraint("Coincident", 3, 2, 0, 1),
    Sketcher.Constraint("Coincident", 4, 2, 5, 1),
    Sketcher.Constraint("Coincident", 5, 2, 6, 1),
    Sketcher.Constraint("Coincident", 6, 2, 7, 1),
    Sketcher.Constraint("Coincident", 7, 2, 8, 1),
    Sketcher.Constraint("Coincident", 8, 2, 9, 1),
    Sketcher.Constraint("Coincident", 9, 2, 10, 1),
    Sketcher.Constraint("Coincident", 10, 2, 11, 1),
    Sketcher.Constraint("Coincident", 11, 2, 4, 1),
    Sketcher.Constraint("Vertical", 0),
    Sketcher.Constraint("Horizontal", 1),
    Sketcher.Constraint("Vertical", 2),
    Sketcher.Constraint("Horizontal", 3),
    Sketcher.Constraint("Horizontal", 4),
    Sketcher.Constraint("Vertical", 5),
    Sketcher.Constraint("Horizontal", 6),
    Sketcher.Constraint("Vertical", 7),
    Sketcher.Constraint("Horizontal", 8),
    Sketcher.Constraint("Vertical", 9),
    Sketcher.Constraint("Horizontal", 10),
    Sketcher.Constraint("Vertical", 11),
    Sketcher.Constraint("Symmetric", 4, 2, 7, 2, -2),
    Sketcher.Constraint("PointOnObject", 0, 2, -1),
    Sketcher.Constraint("DistanceY", 0, 2, 0, 1, 700.0),
    Sketcher.Constraint("DistanceY", 5, 1, 5, 2, 9.0),
    Sketcher.Constraint("DistanceY", 9, 2, 9, 1, 660.0),
    Sketcher.Constraint("DistanceX", 0, 2, -1, 1, 1000.0),
    Sketcher.Constraint("DistanceY", -1, 1, 4, 2, 680.0),
    Sketcher.Constraint("DistanceX", 6, 1, 6, 2, 1857.198888),
    Sketcher.Constraint("DistanceX", 8, 1, 8, 2, 1.779291),
    Sketcher.Constraint("DistanceX", 1, 1, 1, 2, 2000.378728),
    Sketcher.Constraint("DistanceX", 4, 1, 4, 2, 1.400563),
])
sketch11.setExpression("Constraints[26]", "Params.sketch11_height")
sketch11.setExpression("Constraints[27]", "Params.sketch11_height2")
sketch11.setExpression("Constraints[28]", "Params.sketch11_height3")
pad2 = body2.newObject("PartDesign::Pad", "Pad001")
pad2.Profile = sketch11
pad2.setExpression("Length", "Params.pad2_length")
body3 = doc.addObject("PartDesign::Body", "Body002")

# Sketch on XY plane
sketch12 = body3.newObject("Sketcher::SketchObject", "Sketch011")
sketch12.AttachmentSupport = (doc.getObject("XY_Plane002"), [""])
sketch12.MapMode = "FlatFace"
sketch12.AttachmentOffset = App.Placement(App.Vector(0, 0, 50), App.Rotation())
sketch12.addGeometry([
    Part.LineSegment(App.Vector(1000, 0, 0), App.Vector(1000, 701, 0)),
    Part.LineSegment(App.Vector(1000, 701, 0), App.Vector(-1001, 701, 0)),
    Part.LineSegment(App.Vector(-1001, 701, 0), App.Vector(-1001, 0, 0)),
    Part.LineSegment(App.Vector(-1001, 0, 0), App.Vector(1000, 0, 0)),
], False)
sketch12.addConstraint([
    Sketcher.Constraint("Coincident", 0, 2, 1, 1),
    Sketcher.Constraint("Coincident", 1, 2, 2, 1),
    Sketcher.Constraint("Coincident", 2, 2, 3, 1),
    Sketcher.Constraint("Coincident", 3, 2, 0, 1),
    Sketcher.Constraint("Vertical", 0),
    Sketcher.Constraint("Horizontal", 1),
    Sketcher.Constraint("Vertical", 2),
    Sketcher.Constraint("Horizontal", 3),
    Sketcher.Constraint("PointOnObject", 2, 2, -1),
    Sketcher.Constraint("DistanceX", -1, 1, 0, 2, 1000.0),
    Sketcher.Constraint("DistanceX", 1, 2, 1, 1, 2001.117945),
    Sketcher.Constraint("DistanceY", 0, 1, 0, 2, 700.702965),
])
pad3 = body3.newObject("PartDesign::Pad", "Pad002")
pad3.Profile = sketch12
pad3.setExpression("Length", "Params.pad3_length")
body2.Visibility = False

doc.recompute()
